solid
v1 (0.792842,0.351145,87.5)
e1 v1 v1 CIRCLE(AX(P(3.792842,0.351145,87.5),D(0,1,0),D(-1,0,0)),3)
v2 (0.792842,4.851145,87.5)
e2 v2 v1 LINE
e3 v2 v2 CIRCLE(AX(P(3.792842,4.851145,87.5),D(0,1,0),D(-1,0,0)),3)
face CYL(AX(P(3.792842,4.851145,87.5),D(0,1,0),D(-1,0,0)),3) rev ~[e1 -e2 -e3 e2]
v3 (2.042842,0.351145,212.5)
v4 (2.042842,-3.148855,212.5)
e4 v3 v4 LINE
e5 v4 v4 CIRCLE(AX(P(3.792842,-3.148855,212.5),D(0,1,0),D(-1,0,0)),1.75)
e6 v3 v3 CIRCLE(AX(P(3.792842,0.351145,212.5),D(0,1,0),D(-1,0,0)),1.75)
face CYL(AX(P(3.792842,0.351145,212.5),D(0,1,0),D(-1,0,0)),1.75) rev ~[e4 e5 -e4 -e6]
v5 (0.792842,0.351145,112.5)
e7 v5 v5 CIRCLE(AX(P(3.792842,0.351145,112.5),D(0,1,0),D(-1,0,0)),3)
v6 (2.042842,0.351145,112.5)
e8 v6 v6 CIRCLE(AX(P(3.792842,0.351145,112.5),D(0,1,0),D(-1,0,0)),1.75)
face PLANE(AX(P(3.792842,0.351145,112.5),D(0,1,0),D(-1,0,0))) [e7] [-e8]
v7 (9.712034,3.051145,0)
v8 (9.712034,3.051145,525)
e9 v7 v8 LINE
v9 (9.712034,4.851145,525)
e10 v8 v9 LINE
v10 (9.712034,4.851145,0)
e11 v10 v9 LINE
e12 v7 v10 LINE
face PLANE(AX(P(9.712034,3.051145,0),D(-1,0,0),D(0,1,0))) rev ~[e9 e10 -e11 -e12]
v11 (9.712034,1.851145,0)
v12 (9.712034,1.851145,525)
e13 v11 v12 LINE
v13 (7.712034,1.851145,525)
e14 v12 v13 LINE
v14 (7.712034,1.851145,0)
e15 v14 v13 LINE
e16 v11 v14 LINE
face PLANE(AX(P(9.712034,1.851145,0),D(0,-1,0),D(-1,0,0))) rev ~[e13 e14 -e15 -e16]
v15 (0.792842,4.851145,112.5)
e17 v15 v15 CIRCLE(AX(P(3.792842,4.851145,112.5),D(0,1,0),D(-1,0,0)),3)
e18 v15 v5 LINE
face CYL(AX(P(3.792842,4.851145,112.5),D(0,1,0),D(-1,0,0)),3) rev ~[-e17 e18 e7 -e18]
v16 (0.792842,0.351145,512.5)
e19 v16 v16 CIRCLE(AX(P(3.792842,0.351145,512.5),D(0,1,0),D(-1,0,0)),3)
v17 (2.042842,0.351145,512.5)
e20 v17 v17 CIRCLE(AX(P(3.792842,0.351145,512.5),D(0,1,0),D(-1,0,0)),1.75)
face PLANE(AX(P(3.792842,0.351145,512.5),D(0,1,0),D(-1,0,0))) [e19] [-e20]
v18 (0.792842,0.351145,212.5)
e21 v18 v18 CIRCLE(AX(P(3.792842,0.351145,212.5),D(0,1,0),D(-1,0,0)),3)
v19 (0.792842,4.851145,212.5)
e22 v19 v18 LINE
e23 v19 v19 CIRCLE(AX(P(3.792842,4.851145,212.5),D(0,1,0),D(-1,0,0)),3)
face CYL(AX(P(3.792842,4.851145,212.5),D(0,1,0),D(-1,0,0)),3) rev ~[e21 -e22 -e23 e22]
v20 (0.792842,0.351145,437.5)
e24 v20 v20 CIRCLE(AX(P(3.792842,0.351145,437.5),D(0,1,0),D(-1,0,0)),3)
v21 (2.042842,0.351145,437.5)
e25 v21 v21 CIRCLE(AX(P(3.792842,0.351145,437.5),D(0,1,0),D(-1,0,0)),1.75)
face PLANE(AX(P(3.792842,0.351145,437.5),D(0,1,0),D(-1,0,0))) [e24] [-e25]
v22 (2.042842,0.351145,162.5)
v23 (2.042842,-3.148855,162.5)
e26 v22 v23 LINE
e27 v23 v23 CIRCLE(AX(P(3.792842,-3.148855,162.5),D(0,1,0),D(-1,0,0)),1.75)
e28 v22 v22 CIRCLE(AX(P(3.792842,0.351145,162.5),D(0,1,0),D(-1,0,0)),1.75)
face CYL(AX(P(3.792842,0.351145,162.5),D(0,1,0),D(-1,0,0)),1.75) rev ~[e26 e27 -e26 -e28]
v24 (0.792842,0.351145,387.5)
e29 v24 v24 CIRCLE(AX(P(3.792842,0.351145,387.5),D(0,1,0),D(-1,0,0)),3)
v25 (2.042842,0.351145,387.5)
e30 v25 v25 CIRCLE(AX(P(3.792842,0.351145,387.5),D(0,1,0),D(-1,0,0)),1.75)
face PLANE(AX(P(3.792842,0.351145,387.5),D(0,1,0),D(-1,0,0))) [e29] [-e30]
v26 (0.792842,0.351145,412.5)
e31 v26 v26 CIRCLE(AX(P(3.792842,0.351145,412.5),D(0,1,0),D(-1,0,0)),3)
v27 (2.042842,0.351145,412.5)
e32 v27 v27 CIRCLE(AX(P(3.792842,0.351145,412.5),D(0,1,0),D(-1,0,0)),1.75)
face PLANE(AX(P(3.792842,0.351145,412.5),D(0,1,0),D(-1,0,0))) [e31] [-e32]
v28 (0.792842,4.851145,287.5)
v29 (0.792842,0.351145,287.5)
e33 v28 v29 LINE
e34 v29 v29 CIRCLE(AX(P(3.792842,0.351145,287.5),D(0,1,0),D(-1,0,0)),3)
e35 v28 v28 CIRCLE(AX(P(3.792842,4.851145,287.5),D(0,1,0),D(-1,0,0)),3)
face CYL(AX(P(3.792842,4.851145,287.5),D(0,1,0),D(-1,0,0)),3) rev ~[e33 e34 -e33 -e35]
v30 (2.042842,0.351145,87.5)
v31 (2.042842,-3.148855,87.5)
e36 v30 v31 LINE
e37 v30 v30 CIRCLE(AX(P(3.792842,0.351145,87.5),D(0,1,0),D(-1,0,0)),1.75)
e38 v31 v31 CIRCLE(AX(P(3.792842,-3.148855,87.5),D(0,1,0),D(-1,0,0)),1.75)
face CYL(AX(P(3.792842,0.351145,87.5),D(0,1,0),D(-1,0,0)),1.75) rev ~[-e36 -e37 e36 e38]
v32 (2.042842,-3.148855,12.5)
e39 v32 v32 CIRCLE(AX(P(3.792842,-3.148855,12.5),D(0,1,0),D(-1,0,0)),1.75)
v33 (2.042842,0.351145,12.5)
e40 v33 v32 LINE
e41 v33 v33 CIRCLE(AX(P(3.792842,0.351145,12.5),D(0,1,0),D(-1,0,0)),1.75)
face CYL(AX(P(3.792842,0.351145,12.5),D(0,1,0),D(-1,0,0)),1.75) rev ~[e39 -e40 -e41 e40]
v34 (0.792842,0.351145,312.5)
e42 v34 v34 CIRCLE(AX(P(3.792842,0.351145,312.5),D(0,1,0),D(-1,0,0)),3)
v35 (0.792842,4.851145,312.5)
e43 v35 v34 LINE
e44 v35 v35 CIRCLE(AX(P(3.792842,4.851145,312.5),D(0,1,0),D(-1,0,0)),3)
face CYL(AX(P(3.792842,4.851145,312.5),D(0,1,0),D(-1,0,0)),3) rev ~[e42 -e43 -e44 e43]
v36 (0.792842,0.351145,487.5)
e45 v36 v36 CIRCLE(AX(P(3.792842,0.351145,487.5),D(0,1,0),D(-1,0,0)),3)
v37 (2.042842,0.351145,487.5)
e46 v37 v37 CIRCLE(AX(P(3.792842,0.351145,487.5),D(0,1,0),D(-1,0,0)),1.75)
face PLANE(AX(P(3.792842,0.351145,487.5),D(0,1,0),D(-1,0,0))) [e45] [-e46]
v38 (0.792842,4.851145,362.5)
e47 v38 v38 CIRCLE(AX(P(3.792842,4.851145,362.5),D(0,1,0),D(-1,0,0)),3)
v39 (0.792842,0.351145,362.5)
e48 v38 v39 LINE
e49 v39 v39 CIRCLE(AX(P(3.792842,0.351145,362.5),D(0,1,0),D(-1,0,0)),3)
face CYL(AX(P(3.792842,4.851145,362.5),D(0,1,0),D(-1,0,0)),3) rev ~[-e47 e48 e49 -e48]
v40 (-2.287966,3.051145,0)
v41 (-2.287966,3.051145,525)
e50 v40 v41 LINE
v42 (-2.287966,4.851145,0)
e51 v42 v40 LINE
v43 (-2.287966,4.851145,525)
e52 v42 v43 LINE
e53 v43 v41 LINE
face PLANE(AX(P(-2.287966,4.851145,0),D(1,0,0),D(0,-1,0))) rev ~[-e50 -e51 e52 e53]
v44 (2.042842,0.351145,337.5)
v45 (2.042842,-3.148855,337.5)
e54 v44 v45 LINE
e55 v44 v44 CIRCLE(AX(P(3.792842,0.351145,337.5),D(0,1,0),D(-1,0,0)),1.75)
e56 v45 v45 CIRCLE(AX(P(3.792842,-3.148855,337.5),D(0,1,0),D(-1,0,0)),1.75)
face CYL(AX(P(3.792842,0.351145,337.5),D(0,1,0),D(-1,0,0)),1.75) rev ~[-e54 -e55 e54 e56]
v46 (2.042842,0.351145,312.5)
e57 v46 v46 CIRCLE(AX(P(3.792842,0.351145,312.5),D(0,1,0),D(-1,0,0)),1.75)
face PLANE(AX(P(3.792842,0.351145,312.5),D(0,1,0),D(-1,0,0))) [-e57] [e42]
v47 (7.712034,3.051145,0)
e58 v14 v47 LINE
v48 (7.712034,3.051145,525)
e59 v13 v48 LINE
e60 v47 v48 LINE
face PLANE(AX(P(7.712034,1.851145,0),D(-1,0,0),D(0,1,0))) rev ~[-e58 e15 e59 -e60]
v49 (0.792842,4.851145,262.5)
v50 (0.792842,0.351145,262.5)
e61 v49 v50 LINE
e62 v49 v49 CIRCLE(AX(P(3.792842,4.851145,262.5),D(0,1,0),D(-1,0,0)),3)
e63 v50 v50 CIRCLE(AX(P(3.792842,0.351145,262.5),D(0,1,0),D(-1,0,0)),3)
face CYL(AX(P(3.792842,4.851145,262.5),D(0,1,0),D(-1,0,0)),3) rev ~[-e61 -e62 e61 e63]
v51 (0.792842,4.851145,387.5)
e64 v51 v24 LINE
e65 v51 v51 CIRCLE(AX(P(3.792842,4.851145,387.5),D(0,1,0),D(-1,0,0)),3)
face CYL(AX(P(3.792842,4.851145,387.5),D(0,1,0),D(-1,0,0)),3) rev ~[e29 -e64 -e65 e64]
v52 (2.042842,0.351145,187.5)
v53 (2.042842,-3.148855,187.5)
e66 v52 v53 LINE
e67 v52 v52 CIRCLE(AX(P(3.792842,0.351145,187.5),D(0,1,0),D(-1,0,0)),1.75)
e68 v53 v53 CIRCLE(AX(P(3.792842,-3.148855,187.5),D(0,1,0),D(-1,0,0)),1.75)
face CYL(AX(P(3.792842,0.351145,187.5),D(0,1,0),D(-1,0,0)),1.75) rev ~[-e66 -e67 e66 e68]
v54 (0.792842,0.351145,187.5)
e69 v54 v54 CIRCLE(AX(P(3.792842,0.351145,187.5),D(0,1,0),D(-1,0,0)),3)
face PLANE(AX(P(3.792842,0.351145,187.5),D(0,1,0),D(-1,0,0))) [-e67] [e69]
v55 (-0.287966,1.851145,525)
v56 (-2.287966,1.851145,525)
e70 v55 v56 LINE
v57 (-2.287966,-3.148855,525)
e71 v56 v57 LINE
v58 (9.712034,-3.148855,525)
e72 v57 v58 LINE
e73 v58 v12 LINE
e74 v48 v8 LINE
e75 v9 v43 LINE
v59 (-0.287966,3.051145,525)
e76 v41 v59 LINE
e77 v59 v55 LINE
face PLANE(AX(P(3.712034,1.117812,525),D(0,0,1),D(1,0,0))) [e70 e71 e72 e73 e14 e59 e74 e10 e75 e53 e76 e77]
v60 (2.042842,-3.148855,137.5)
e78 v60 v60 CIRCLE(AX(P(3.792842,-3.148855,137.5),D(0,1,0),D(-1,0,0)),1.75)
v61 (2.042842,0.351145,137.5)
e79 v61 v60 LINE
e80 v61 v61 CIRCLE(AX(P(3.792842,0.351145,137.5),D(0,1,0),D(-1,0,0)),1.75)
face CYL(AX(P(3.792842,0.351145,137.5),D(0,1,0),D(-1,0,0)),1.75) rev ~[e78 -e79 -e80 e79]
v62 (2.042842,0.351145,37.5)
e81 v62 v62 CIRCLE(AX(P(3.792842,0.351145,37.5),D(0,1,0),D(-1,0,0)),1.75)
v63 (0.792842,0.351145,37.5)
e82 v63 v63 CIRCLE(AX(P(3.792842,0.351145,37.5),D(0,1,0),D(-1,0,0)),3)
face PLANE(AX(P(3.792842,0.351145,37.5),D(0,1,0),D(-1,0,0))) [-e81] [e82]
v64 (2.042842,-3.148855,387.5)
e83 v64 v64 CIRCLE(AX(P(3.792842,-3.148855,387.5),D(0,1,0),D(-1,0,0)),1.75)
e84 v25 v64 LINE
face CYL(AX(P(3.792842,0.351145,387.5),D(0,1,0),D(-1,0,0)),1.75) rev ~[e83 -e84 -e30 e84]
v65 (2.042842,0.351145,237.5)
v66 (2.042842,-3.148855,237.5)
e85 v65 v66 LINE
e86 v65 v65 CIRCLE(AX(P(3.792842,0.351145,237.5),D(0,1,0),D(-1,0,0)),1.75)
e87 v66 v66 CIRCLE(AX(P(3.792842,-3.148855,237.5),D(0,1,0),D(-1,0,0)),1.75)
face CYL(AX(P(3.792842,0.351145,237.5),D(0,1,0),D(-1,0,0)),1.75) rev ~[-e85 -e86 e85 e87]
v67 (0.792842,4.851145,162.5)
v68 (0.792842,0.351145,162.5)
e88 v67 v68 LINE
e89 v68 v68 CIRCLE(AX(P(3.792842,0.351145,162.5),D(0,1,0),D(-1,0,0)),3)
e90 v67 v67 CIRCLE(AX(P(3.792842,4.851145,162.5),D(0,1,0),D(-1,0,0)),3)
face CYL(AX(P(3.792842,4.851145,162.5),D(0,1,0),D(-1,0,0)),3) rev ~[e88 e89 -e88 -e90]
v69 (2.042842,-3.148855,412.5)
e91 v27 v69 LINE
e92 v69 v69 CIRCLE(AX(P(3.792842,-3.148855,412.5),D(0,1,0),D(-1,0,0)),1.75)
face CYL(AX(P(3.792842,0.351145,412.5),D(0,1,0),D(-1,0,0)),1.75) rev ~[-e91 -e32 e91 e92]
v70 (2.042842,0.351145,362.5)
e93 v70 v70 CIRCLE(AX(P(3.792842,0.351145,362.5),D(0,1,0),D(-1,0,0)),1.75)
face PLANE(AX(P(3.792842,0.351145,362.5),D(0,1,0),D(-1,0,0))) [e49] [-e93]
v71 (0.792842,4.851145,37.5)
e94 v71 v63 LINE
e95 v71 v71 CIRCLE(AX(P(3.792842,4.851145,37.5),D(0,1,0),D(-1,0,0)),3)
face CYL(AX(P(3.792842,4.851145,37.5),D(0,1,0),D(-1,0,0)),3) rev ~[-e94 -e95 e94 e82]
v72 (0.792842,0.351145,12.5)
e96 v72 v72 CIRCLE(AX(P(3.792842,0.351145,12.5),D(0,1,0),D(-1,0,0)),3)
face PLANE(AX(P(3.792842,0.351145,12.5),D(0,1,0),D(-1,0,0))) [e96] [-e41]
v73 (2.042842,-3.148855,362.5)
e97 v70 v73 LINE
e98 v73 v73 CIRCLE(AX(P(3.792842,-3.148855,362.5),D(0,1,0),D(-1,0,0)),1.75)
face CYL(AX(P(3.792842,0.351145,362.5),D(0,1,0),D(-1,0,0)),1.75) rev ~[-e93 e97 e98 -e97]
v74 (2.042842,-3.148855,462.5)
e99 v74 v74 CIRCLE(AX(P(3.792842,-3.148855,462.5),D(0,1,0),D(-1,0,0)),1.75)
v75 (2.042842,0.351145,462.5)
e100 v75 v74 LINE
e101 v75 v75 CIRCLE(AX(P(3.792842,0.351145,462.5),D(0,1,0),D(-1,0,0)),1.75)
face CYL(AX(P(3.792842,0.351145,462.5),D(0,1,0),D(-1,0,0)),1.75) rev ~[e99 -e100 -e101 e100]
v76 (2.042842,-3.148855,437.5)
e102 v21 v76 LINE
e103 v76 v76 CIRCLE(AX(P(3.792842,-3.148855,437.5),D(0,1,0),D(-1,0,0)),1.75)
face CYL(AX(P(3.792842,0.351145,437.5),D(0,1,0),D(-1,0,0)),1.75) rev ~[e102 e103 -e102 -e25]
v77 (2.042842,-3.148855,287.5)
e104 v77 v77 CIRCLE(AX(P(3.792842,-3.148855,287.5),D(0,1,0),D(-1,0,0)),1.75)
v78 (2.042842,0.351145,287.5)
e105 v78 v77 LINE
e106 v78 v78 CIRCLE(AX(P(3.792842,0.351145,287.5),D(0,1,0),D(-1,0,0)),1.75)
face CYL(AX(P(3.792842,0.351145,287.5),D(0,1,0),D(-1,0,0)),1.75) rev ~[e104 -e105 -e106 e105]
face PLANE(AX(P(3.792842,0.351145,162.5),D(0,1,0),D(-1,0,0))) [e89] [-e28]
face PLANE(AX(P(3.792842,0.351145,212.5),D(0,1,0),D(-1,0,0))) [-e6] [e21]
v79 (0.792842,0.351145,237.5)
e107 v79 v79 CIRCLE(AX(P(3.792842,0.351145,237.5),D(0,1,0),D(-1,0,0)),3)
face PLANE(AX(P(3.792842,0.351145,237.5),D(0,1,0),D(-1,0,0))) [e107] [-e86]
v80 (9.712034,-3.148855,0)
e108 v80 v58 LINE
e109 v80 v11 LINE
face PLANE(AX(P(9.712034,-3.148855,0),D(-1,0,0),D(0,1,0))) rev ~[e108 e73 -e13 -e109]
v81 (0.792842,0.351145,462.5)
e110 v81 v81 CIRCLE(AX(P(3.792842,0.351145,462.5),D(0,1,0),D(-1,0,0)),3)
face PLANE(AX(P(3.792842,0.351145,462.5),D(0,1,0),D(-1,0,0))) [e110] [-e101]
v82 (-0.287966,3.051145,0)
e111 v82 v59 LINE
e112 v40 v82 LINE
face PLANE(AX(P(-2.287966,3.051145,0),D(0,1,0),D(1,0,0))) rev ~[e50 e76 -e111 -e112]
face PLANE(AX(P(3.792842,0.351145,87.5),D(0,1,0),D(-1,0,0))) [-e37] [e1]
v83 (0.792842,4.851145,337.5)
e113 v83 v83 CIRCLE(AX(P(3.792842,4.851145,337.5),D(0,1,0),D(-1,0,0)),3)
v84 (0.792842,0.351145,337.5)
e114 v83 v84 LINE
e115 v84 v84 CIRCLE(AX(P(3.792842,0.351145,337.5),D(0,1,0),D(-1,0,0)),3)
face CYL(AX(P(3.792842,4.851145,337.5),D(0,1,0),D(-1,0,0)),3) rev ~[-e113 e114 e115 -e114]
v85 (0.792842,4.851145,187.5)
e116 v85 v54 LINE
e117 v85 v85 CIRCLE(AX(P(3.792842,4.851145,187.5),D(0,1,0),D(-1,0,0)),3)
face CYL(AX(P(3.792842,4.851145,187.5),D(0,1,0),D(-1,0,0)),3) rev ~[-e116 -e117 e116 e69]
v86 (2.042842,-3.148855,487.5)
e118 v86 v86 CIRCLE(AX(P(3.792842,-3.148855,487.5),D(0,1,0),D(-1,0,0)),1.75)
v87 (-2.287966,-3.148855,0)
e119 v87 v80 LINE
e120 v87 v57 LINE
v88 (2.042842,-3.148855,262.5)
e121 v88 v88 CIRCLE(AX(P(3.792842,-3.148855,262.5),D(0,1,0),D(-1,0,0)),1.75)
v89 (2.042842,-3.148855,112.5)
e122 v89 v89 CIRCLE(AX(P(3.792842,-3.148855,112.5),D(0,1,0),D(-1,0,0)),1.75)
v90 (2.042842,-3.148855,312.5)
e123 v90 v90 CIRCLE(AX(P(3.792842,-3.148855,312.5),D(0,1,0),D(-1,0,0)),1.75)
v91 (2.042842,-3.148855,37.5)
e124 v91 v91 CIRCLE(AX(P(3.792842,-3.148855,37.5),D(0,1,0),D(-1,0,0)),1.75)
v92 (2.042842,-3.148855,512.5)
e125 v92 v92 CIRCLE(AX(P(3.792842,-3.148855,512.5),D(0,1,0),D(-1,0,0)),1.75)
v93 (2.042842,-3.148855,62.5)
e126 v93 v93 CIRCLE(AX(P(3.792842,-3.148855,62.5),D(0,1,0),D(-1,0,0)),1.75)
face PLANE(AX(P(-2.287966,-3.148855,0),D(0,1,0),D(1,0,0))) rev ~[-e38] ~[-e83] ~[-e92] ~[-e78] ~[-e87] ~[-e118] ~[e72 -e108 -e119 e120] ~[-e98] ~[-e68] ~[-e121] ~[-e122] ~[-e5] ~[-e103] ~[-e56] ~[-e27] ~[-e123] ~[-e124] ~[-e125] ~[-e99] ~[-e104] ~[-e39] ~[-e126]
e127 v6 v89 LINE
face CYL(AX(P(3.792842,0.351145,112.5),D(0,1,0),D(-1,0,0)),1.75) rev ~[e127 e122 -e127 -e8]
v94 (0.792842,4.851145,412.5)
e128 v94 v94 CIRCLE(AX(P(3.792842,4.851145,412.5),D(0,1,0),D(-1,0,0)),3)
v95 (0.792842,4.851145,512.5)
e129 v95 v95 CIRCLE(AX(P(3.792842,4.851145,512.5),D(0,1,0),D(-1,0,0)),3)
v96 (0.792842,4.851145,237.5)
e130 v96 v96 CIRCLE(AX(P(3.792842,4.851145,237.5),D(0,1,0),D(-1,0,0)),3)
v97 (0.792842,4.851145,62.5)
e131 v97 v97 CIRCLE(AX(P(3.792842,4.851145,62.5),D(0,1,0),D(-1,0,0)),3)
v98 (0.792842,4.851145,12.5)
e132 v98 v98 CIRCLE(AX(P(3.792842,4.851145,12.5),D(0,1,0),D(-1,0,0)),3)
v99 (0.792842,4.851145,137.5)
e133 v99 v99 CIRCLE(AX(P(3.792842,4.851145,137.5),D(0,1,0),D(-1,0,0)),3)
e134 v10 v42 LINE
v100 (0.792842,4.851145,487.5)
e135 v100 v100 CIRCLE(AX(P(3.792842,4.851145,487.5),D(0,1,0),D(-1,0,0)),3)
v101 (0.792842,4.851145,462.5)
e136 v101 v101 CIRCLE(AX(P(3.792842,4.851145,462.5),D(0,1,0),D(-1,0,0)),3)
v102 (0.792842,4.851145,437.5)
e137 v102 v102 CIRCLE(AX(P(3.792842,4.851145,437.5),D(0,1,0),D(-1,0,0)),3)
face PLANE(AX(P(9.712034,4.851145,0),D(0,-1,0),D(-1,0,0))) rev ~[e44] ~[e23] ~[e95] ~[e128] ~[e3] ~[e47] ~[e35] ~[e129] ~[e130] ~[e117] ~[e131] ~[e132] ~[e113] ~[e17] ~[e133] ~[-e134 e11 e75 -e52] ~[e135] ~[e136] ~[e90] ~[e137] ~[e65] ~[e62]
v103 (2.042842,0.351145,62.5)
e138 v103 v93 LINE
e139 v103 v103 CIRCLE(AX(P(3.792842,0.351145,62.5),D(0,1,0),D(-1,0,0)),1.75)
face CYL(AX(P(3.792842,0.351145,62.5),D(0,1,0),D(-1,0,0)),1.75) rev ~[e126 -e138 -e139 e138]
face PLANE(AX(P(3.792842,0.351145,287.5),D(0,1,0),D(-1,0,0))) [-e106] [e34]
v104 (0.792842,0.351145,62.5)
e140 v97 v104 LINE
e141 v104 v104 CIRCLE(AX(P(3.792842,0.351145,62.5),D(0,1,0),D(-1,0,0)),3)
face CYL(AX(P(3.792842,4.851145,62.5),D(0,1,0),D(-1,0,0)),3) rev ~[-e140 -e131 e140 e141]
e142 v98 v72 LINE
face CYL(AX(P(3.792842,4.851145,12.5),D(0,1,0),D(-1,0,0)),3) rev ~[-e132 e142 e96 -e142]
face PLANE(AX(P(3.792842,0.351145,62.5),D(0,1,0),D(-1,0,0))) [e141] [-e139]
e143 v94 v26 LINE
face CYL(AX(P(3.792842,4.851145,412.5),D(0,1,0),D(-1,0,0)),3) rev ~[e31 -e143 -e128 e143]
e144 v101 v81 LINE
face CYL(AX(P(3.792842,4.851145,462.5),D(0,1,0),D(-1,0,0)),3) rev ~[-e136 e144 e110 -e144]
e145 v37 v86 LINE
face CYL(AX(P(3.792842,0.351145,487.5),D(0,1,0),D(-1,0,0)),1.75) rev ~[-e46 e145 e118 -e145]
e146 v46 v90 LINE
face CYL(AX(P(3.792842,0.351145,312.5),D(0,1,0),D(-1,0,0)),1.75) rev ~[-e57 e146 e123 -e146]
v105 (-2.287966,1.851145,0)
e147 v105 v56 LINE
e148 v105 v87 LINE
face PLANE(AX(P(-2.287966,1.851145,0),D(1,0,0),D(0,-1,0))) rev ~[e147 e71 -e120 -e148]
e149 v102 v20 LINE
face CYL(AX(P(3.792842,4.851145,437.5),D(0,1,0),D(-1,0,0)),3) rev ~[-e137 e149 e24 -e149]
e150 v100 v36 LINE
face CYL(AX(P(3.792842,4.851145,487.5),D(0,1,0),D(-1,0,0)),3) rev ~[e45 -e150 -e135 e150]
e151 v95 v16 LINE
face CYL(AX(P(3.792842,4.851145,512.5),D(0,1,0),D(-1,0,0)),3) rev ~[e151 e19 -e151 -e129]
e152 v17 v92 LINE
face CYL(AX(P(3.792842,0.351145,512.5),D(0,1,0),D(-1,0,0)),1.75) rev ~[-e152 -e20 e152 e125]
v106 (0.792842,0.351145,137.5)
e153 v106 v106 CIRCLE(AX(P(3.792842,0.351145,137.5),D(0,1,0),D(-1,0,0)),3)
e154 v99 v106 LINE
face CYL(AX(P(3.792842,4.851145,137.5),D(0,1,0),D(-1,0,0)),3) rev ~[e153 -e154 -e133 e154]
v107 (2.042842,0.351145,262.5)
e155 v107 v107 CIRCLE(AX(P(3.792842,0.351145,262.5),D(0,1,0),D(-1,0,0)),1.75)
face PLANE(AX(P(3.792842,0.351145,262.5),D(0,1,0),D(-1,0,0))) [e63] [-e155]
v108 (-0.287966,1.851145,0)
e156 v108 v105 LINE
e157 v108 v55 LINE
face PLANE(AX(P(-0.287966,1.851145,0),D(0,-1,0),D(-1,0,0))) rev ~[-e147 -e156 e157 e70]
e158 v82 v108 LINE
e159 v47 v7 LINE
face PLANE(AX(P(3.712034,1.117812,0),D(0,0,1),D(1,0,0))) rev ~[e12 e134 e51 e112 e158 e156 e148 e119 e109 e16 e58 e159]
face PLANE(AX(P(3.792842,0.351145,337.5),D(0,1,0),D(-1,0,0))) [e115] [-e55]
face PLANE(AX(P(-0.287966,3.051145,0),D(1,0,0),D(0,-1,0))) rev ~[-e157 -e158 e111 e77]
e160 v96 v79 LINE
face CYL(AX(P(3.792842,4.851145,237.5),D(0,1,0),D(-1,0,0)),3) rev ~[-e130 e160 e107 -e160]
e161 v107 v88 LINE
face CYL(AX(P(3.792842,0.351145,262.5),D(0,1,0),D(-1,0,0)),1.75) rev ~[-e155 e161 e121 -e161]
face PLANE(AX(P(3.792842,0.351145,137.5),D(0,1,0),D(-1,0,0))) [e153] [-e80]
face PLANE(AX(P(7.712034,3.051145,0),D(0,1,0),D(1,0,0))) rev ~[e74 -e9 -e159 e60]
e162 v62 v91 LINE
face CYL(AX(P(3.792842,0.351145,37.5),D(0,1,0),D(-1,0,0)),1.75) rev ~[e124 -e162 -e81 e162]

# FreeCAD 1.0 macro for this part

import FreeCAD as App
import Part
import Sketcher

V = App.Vector
Q = App.Units.Quantity

doc = App.newDocument("Part")
body = doc.addObject("PartDesign::Body", "Body")

# Sketch on XY plane
sketch1 = body.newObject("Sketcher::SketchObject", "Sketch")
sketch1.AttachmentSupport = (doc.getObject("XY_Plane"), [""])
sketch1.MapMode = "FlatFace"
sketch1.addGeometry([
    Part.LineSegment(V(-2.3, -3.1, 0), V(9.7, -3.1, 0)),  # 0
    Part.LineSegment(V(9.7, -3.1, 0), V(9.7, 1.9, 0)),  # 1
    Part.LineSegment(V(9.7, 1.9, 0), V(7.7, 1.9, 0)),  # 2
    Part.LineSegment(V(7.7, 1.9, 0), V(7.7, 3.1, 0)),  # 3
    Part.LineSegment(V(7.7, 3.1, 0), V(9.7, 3.1, 0)),  # 4
    Part.LineSegment(V(9.7, 3.1, 0), V(9.7, 4.9, 0)),  # 5
    Part.LineSegment(V(9.7, 4.9, 0), V(-2.3, 4.9, 0)),  # 6
    Part.LineSegment(V(-2.3, 4.9, 0), V(-2.3, 3.1, 0)),  # 7
    Part.LineSegment(V(-2.3, 3.1, 0), V(-0.3, 3.1, 0)),  # 8
    Part.LineSegment(V(-0.3, 3.1, 0), V(-0.3, 1.9, 0)),  # 9
    Part.LineSegment(V(-0.3, 1.9, 0), V(-2.3, 1.9, 0)),  # 10
    Part.LineSegment(V(-2.3, 1.9, 0), V(-2.3, -3.1, 0)),  # 11
], False)
sketch1.addConstraint([
    Sketcher.Constraint("Coincident", 0, 2, 1, 1),
    Sketcher.Constraint("Coincident", 1, 2, 2, 1),
    Sketcher.Constraint("Coincident", 2, 2, 3, 1),
    Sketcher.Constraint("Coincident", 3, 2, 4, 1),
    Sketcher.Constraint("Coincident", 4, 2, 5, 1),
    Sketcher.Constraint("Coincident", 5, 2, 6, 1),
    Sketcher.Constraint("Coincident", 6, 2, 7, 1),
    Sketcher.Constraint("Coincident", 7, 2, 8, 1),
    Sketcher.Constraint("Coincident", 8, 2, 9, 1),
    Sketcher.Constraint("Coincident", 9, 2, 10, 1),
    Sketcher.Constraint("Coincident", 10, 2, 11, 1),
    Sketcher.Constraint("Coincident", 11, 2, 0, 1),
    Sketcher.Constraint("Horizontal", 0),
    Sketcher.Constraint("Vertical", 1),
    Sketcher.Constraint("Horizontal", 2),
    Sketcher.Constraint("Vertical", 3),
    Sketcher.Constraint("Horizontal", 4),
    Sketcher.Constraint("Vertical", 5),
    Sketcher.Constraint("Horizontal", 6),
    Sketcher.Constraint("Vertical", 7),
    Sketcher.Constraint("Horizontal", 8),
    Sketcher.Constraint("Vertical", 9),
    Sketcher.Constraint("Horizontal", 10),
    Sketcher.Constraint("Vertical", 11),
    Sketcher.Constraint("Horizontal", 4, 2, 7, 2),
    Sketcher.Constraint("Horizontal", 2, 2, 9, 2),
    Sketcher.Constraint("Vertical", 1, 2, 4, 2),
    Sketcher.Constraint("Vertical", 7, 2, 10, 2),
    Sketcher.Constraint("Equal", 4, 8),
    Sketcher.Constraint("DistanceX", 0, 1, 0, 2, Q("12 mm")),
    Sketcher.Constraint("DistanceX", 2, 2, 2, 1, Q("2 mm")),
    Sketcher.Constraint("DistanceY", 1, 1, 1, 2, Q("5 mm")),
    Sketcher.Constraint("DistanceY", 3, 1, 3, 2, Q("1.2 mm")),
    Sketcher.Constraint("DistanceY", 5, 1, 5, 2, Q("1.8 mm")),
    Sketcher.Constraint("DistanceX", -1, 1, 0, 2, Q("9.712034 mm")),
    Sketcher.Constraint("DistanceY", 0, 2, -1, 1, Q("3.148855 mm")),
])
pad1 = body.newObject("PartDesign::Pad", "Pad")
pad1.Profile = sketch1
pad1.Length = 525

# Sketch on XZ plane
sketch2 = body.newObject("Sketcher::SketchObject", "Sketch001")
sketch2.AttachmentSupport = (doc.getObject("XZ_Plane"), [""])
sketch2.MapMode = "FlatFace"
sketch2.AttachmentOffset = App.Placement(V(0, 0, -4.851145), App.Rotation())
sketch2.addGeometry([
    Part.Circle(V(3.8, 512.5, 0), V(0, 0, 1), 3),  # 0
    Part.Circle(V(3.8, 487.5, 0), V(0, 0, 1), 3),  # 1
    Part.Circle(V(3.8, 462.5, 0), V(0, 0, 1), 3),  # 2
    Part.Circle(V(3.8, 437.5, 0), V(0, 0, 1), 3),  # 3
    Part.Circle(V(3.8, 412.5, 0), V(0, 0, 1), 3),  # 4
    Part.Circle(V(3.8, 387.5, 0), V(0, 0, 1), 3),  # 5
    Part.Circle(V(3.8, 362.5, 0), V(0, 0, 1), 3),  # 6
    Part.Circle(V(3.8, 337.5, 0), V(0, 0, 1), 3),  # 7
    Part.Circle(V(3.8, 312.5, 0), V(0, 0, 1), 3),  # 8
    Part.Circle(V(3.8, 287.5, 0), V(0, 0, 1), 3),  # 9
    Part.Circle(V(3.8, 262.5, 0), V(0, 0, 1), 3),  # 10
    Part.Circle(V(3.8, 237.5, 0), V(0, 0, 1), 3),  # 11
    Part.Circle(V(3.8, 212.5, 0), V(0, 0, 1), 3),  # 12
    Part.Circle(V(3.8, 187.5, 0), V(0, 0, 1), 3),  # 13
    Part.Circle(V(3.8, 162.5, 0), V(0, 0, 1), 3),  # 14
    Part.Circle(V(3.8, 137.5, 0), V(0, 0, 1), 3),  # 15
    Part.Circle(V(3.8, 112.5, 0), V(0, 0, 1), 3),  # 16
    Part.Circle(V(3.8, 87.5, 0), V(0, 0, 1), 3),  # 17
    Part.Circle(V(3.8, 62.5, 0), V(0, 0, 1), 3),  # 18
    Part.Circle(V(3.8, 37.5, 0), V(0, 0, 1), 3),  # 19
    Part.Circle(V(3.8, 12.5, 0), V(0, 0, 1), 3),  # 20
], False)
sketch2.addConstraint([
    Sketcher.Constraint("Equal", 0, 1),
    Sketcher.Constraint("Equal", 1, 2),
    Sketcher.Constraint("Equal", 2, 3),
    Sketcher.Constraint("Equal", 3, 4),
    Sketcher.Constraint("Equal", 4, 5),
    Sketcher.Constraint("Equal", 5, 6),
    Sketcher.Constraint("Equal", 6, 7),
    Sketcher.Constraint("Equal", 7, 8),
    Sketcher.Constraint("Equal", 8, 9),
    Sketcher.Constraint("Equal", 9, 10),
    Sketcher.Constraint("Equal", 10, 11),
    Sketcher.Constraint("Equal", 11, 12),
    Sketcher.Constraint("Equal", 12, 13),
    Sketcher.Constraint("Equal", 13, 14),
    Sketcher.Constraint("Equal", 14, 15),
    Sketcher.Constraint("Equal", 15, 16),
    Sketcher.Constraint("Equal", 16, 17),
    Sketcher.Constraint("Equal", 17, 18),
    Sketcher.Constraint("Equal", 18, 19),
    Sketcher.Constraint("Equal", 19, 20),
    Sketcher.Constraint("Vertical", 0, 3, 1, 3),
    Sketcher.Constraint("Vertical", 1, 3, 2, 3),
    Sketcher.Constraint("Vertical", 2, 3, 3, 3),
    Sketcher.Constraint("Vertical", 3, 3, 4, 3),
    Sketcher.Constraint("Vertical", 4, 3, 5, 3),
    Sketcher.Constraint("Vertical", 5, 3, 6, 3),
    Sketcher.Constraint("Vertical", 6, 3, 7, 3),
    Sketcher.Constraint("Vertical", 7, 3, 8, 3),
    Sketcher.Constraint("Vertical", 8, 3, 9, 3),
    Sketcher.Constraint("Vertical", 9, 3, 10, 3),
    Sketcher.Constraint("Vertical", 10, 3, 11, 3),
    Sketcher.Constraint("Vertical", 11, 3, 12, 3),
    Sketcher.Constraint("Vertical", 12, 3, 13, 3),
    Sketcher.Constraint("Vertical", 13, 3, 14, 3),
    Sketcher.Constraint("Vertical", 14, 3, 15, 3),
    Sketcher.Constraint("Vertical", 15, 3, 16, 3),
    Sketcher.Constraint("Vertical", 16, 3, 17, 3),
    Sketcher.Constraint("Vertical", 17, 3, 18, 3),
    Sketcher.Constraint("Vertical", 18, 3, 19, 3),
    Sketcher.Constraint("Vertical", 19, 3, 20, 3),
    Sketcher.Constraint("Diameter", 0, Q("6 mm")),
    Sketcher.Constraint("DistanceY", 1, 3, 0, 3, Q("25 mm")),
    Sketcher.Constraint("DistanceY", 2, 3, 1, 3, Q("25 mm")),
    Sketcher.Constraint("DistanceY", 3, 3, 2, 3, Q("25 mm")),
    Sketcher.Constraint("DistanceY", 4, 3, 3, 3, Q("25 mm")),
    Sketcher.Constraint("DistanceY", 5, 3, 4, 3, Q("25 mm")),
    Sketcher.Constraint("DistanceY", 6, 3, 5, 3, Q("25 mm")),
    Sketcher.Constraint("DistanceY", 7, 3, 6, 3, Q("25 mm")),
    Sketcher.Constraint("DistanceY", 8, 3, 7, 3, Q("25 mm")),
    Sketcher.Constraint("DistanceY", 9, 3, 8, 3, Q("25 mm")),
    Sketcher.Constraint("DistanceY", 10, 3, 9, 3, Q("25 mm")),
    Sketcher.Constraint("DistanceY", 11, 3, 10, 3, Q("25 mm")),
    Sketcher.Constraint("DistanceY", 12, 3, 11, 3, Q("25 mm")),
    Sketcher.Constraint("DistanceY", 13, 3, 12, 3, Q("25 mm")),
    Sketcher.Constraint("DistanceY", 14, 3, 13, 3, Q("25 mm")),
    Sketcher.Constraint("DistanceY", 15, 3, 14, 3, Q("25 mm")),
    Sketcher.Constraint("DistanceY", 16, 3, 15, 3, Q("25 mm")),
    Sketcher.Constraint("DistanceY", 17, 3, 16, 3, Q("25 mm")),
    Sketcher.Constraint("DistanceY", 18, 3, 17, 3, Q("25 mm")),
    Sketcher.Constraint("DistanceY", 19, 3, 18, 3, Q("25 mm")),
    Sketcher.Constraint("DistanceY", 20, 3, 19, 3, Q("25 mm")),
    Sketcher.Constraint("DistanceY", -1, 1, 0, 3, Q("512.5 mm")),
    Sketcher.Constraint("DistanceX", -1, 1, 0, 3, Q("3.792842 mm")),
])
pocket1 = body.newObject("PartDesign::Pocket", "Pocket")
pocket1.Profile = sketch2
pocket1.Length = 4.5
pocket1.Reversed = True

# Sketch on XZ plane
sketch3 = body.newObject("Sketcher::SketchObject", "Sketch002")
sketch3.AttachmentSupport = (doc.getObject("XZ_Plane"), [""])
sketch3.MapMode = "FlatFace"
sketch3.AttachmentOffset = App.Placement(V(0, 0, -0.351145), App.Rotation())
sketch3.addGeometry(Part.Circle(V(3.8, 512.5, 0), V(0, 0, 1), 1.8), False)
sketch3.addConstraint([
    Sketcher.Constraint("Diameter", 0, Q("3.5 mm")),
    Sketcher.Constraint("DistanceY", -1, 1, 0, 3, Q("512.5 mm")),
    Sketcher.Constraint("DistanceX", -1, 1, 0, 3, Q("3.792842 mm")),
])
pocket2 = body.newObject("PartDesign::Pocket", "Pocket001")
pocket2.Profile = sketch3
pocket2.Type = "UpToFirst"
pocket2.Reversed = True

# Sketch on XZ plane
sketch4 = body.newObject("Sketcher::SketchObject", "Sketch003")
sketch4.AttachmentSupport = (doc.getObject("XZ_Plane"), [""])
sketch4.MapMode = "FlatFace"
sketch4.AttachmentOffset = App.Placement(V(0, 0, -0.351145), App.Rotation())
sketch4.addGeometry(Part.Circle(V(3.8, 487.5, 0), V(0, 0, 1), 1.8), False)
sketch4.addConstraint([
    Sketcher.Constraint("Diameter", 0, Q("3.5 mm")),
    Sketcher.Constraint("DistanceY", -1, 1, 0, 3, Q("487.5 mm")),
    Sketcher.Constraint("DistanceX", -1, 1, 0, 3, Q("3.792842 mm")),
])
pocket3 = body.newObject("PartDesign::Pocket", "Pocket002")
pocket3.Profile = sketch4
pocket3.Type = "UpToFirst"
pocket3.Reversed = True

# Sketch on XZ plane
sketch5 = body.newObject("Sketcher::SketchObject", "Sketch004")
sketch5.AttachmentSupport = (doc.getObject("XZ_Plane"), [""])
sketch5.MapMode = "FlatFace"
sketch5.AttachmentOffset = App.Placement(V(0, 0, -0.351145), App.Rotation())
sketch5.addGeometry(Part.Circle(V(3.8, 462.5, 0), V(0, 0, 1), 1.8), False)
sketch5.addConstraint([
    Sketcher.Constraint("Diameter", 0, Q("3.5 mm")),
    Sketcher.Constraint("DistanceY", -1, 1, 0, 3, Q("462.5 mm")),
    Sketcher.Constraint("DistanceX", -1, 1, 0, 3, Q("3.792842 mm")),
])
pocket4 = body.newObject("PartDesign::Pocket", "Pocket003")
pocket4.Profile = sketch5
pocket4.Type = "UpToFirst"
pocket4.Reversed = True

# Sketch on XZ plane
sketch6 = body.newObject("Sketcher::SketchObject", "Sketch005")
sketch6.AttachmentSupport = (doc.getObject("XZ_Plane"), [""])
sketch6.MapMode = "FlatFace"
sketch6.AttachmentOffset = App.Placement(V(0, 0, -0.351145), App.Rotation())
sketch6.addGeometry(Part.Circle(V(3.8, 437.5, 0), V(0, 0, 1), 1.8), False)
sketch6.addConstraint([
    Sketcher.Constraint("Diameter", 0, Q("3.5 mm")),
    Sketcher.Constraint("DistanceY", -1, 1, 0, 3, Q("437.5 mm")),
    Sketcher.Constraint("DistanceX", -1, 1, 0, 3, Q("3.792842 mm")),
])
pocket5 = body.newObject("PartDesign::Pocket", "Pocket004")
pocket5.Profile = sketch6
pocket5.Type = "UpToFirst"
pocket5.Reversed = True

# Sketch on XZ plane
sketch7 = body.newObject("Sketcher::SketchObject", "Sketch006")
sketch7.AttachmentSupport = (doc.getObject("XZ_Plane"), [""])
sketch7.MapMode = "FlatFace"
sketch7.AttachmentOffset = App.Placement(V(0, 0, -0.351145), App.Rotation())
sketch7.addGeometry(Part.Circle(V(3.8, 412.5, 0), V(0, 0, 1), 1.8), False)
sketch7.addConstraint([
    Sketcher.Constraint("Diameter", 0, Q("3.5 mm")),
    Sketcher.Constraint("DistanceY", -1, 1, 0, 3, Q("412.5 mm")),
    Sketcher.Constraint("DistanceX", -1, 1, 0, 3, Q("3.792842 mm")),
])
pocket6 = body.newObject("PartDesign::Pocket", "Pocket005")
pocket6.Profile = sketch7
pocket6.Type = "UpToFirst"
pocket6.Reversed = True

# Sketch on XZ plane
sketch8 = body.newObject("Sketcher::SketchObject", "Sketch007")
sketch8.AttachmentSupport = (doc.getObject("XZ_Plane"), [""])
sketch8.MapMode = "FlatFace"
sketch8.AttachmentOffset = App.Placement(V(0, 0, -0.351145), App.Rotation())
sketch8.addGeometry(Part.Circle(V(3.8, 387.5, 0), V(0, 0, 1), 1.8), False)
sketch8.addConstraint([
    Sketcher.Constraint("Diameter", 0, Q("3.5 mm")),
    Sketcher.Constraint("DistanceY", -1, 1, 0, 3, Q("387.5 mm")),
    Sketcher.Constraint("DistanceX", -1, 1, 0, 3, Q("3.792842 mm")),
])
pocket7 = body.newObject("PartDesign::Pocket", "Pocket006")
pocket7.Profile = sketch8
pocket7.Type = "UpToFirst"
pocket7.Reversed = True

# Sketch on XZ plane
sketch9 = body.newObject("Sketcher::SketchObject", "Sketch008")
sketch9.AttachmentSupport = (doc.getObject("XZ_Plane"), [""])
sketch9.MapMode = "FlatFace"
sketch9.AttachmentOffset = App.Placement(V(0, 0, -0.351145), App.Rotation())
sketch9.addGeometry(Part.Circle(V(3.8, 362.5, 0), V(0, 0, 1), 1.8), False)
sketch9.addConstraint([
    Sketcher.Constraint("Diameter", 0, Q("3.5 mm")),
    Sketcher.Constraint("DistanceY", -1, 1, 0, 3, Q("362.5 mm")),
    Sketcher.Constraint("DistanceX", -1, 1, 0, 3, Q("3.792842 mm")),
])
pocket8 = body.newObject("PartDesign::Pocket", "Pocket007")
pocket8.Profile = sketch9
pocket8.Type = "UpToFirst"
pocket8.Reversed = True

# Sketch on XZ plane
sketch10 = body.newObject("Sketcher::SketchObject", "Sketch009")
sketch10.AttachmentSupport = (doc.getObject("XZ_Plane"), [""])
sketch10.MapMode = "FlatFace"
sketch10.AttachmentOffset = App.Placement(V(0, 0, -0.351145), App.Rotation())
sketch10.addGeometry(Part.Circle(V(3.8, 337.5, 0), V(0, 0, 1), 1.8), False)
sketch10.addConstraint([
    Sketcher.Constraint("Diameter", 0, Q("3.5 mm")),
    Sketcher.Constraint("DistanceY", -1, 1, 0, 3, Q("337.5 mm")),
    Sketcher.Constraint("DistanceX", -1, 1, 0, 3, Q("3.792842 mm")),
])
pocket9 = body.newObject("PartDesign::Pocket", "Pocket008")
pocket9.Profile = sketch10
pocket9.Type = "UpToFirst"
pocket9.Reversed = True

# Sketch on XZ plane
sketch11 = body.newObject("Sketcher::SketchObject", "Sketch010")
sketch11.AttachmentSupport = (doc.getObject("XZ_Plane"), [""])
sketch11.MapMode = "FlatFace"
sketch11.AttachmentOffset = App.Placement(V(0, 0, -0.351145), App.Rotation())
sketch11.addGeometry(Part.Circle(V(3.8, 312.5, 0), V(0, 0, 1), 1.8), False)
sketch11.addConstraint([
    Sketcher.Constraint("Diameter", 0, Q("3.5 mm")),
    Sketcher.Constraint("DistanceY", -1, 1, 0, 3, Q("312.5 mm")),
    Sketcher.Constraint("DistanceX", -1, 1, 0, 3, Q("3.792842 mm")),
])
pocket10 = body.newObject("PartDesign::Pocket", "Pocket009")
pocket10.Profile = sketch11
pocket10.Type = "UpToFirst"
pocket10.Reversed = True

# Sketch on XZ plane
sketch12 = body.newObject("Sketcher::SketchObject", "Sketch011")
sketch12.AttachmentSupport = (doc.getObject("XZ_Plane"), [""])
sketch12.MapMode = "FlatFace"
sketch12.AttachmentOffset = App.Placement(V(0, 0, -0.351145), App.Rotation())
sketch12.addGeometry(Part.Circle(V(3.8, 287.5, 0), V(0, 0, 1), 1.8), False)
sketch12.addConstraint([
    Sketcher.Constraint("Diameter", 0, Q("3.5 mm")),
    Sketcher.Constraint("DistanceY", -1, 1, 0, 3, Q("287.5 mm")),
    Sketcher.Constraint("DistanceX", -1, 1, 0, 3, Q("3.792842 mm")),
])
pocket11 = body.newObject("PartDesign::Pocket", "Pocket010")
pocket11.Profile = sketch12
pocket11.Type = "UpToFirst"
pocket11.Reversed = True

# Sketch on XZ plane
sketch13 = body.newObject("Sketcher::SketchObject", "Sketch012")
sketch13.AttachmentSupport = (doc.getObject("XZ_Plane"), [""])
sketch13.MapMode = "FlatFace"
sketch13.AttachmentOffset = App.Placement(V(0, 0, -0.351145), App.Rotation())
sketch13.addGeometry(Part.Circle(V(3.8, 262.5, 0), V(0, 0, 1), 1.8), False)
sketch13.addConstraint([
    Sketcher.Constraint("Diameter", 0, Q("3.5 mm")),
    Sketcher.Constraint("DistanceY", -1, 1, 0, 3, Q("262.5 mm")),
    Sketcher.Constraint("DistanceX", -1, 1, 0, 3, Q("3.792842 mm")),
])
pocket12 = body.newObject("PartDesign::Pocket", "Pocket011")
pocket12.Profile = sketch13
pocket12.Type = "UpToFirst"
pocket12.Reversed = True

# Sketch on XZ plane
sketch14 = body.newObject("Sketcher::SketchObject", "Sketch013")
sketch14.AttachmentSupport = (doc.getObject("XZ_Plane"), [""])
sketch14.MapMode = "FlatFace"
sketch14.AttachmentOffset = App.Placement(V(0, 0, -0.351145), App.Rotation())
sketch14.addGeometry(Part.Circle(V(3.8, 237.5, 0), V(0, 0, 1), 1.8), False)
sketch14.addConstraint([
    Sketcher.Constraint("Diameter", 0, Q("3.5 mm")),
    Sketcher.Constraint("DistanceY", -1, 1, 0, 3, Q("237.5 mm")),
    Sketcher.Constraint("DistanceX", -1, 1, 0, 3, Q("3.792842 mm")),
])
pocket13 = body.newObject("PartDesign::Pocket", "Pocket012")
pocket13.Profile = sketch14
pocket13.Type = "UpToFirst"
pocket13.Reversed = True

# Sketch on XZ plane
sketch15 = body.newObject("Sketcher::SketchObject", "Sketch014")
sketch15.AttachmentSupport = (doc.getObject("XZ_Plane"), [""])
sketch15.MapMode = "FlatFace"
sketch15.AttachmentOffset = App.Placement(V(0, 0, -0.351145), App.Rotation())
sketch15.addGeometry(Part.Circle(V(3.8, 212.5, 0), V(0, 0, 1), 1.8), False)
sketch15.addConstraint([
    Sketcher.Constraint("Diameter", 0, Q("3.5 mm")),
    Sketcher.Constraint("DistanceY", -1, 1, 0, 3, Q("212.5 mm")),
    Sketcher.Constraint("DistanceX", -1, 1, 0, 3, Q("3.792842 mm")),
])
pocket14 = body.newObject("PartDesign::Pocket", "Pocket013")
pocket14.Profile = sketch15
pocket14.Type = "UpToFirst"
pocket14.Reversed = True

# Sketch on XZ plane
sketch16 = body.newObject("Sketcher::SketchObject", "Sketch015")
sketch16.AttachmentSupport = (doc.getObject("XZ_Plane"), [""])
sketch16.MapMode = "FlatFace"
sketch16.AttachmentOffset = App.Placement(V(0, 0, -0.351145), App.Rotation())
sketch16.addGeometry(Part.Circle(V(3.8, 187.5, 0), V(0, 0, 1), 1.8), False)
sketch16.addConstraint([
    Sketcher.Constraint("Diameter", 0, Q("3.5 mm")),
    Sketcher.Constraint("DistanceY", -1, 1, 0, 3, Q("187.5 mm")),
    Sketcher.Constraint("DistanceX", -1, 1, 0, 3, Q("3.792842 mm")),
])
pocket15 = body.newObject("PartDesign::Pocket", "Pocket014")
pocket15.Profile = sketch16
pocket15.Type = "UpToFirst"
pocket15.Reversed = True

# Sketch on XZ plane
sketch17 = body.newObject("Sketcher::SketchObject", "Sketch016")
sketch17.AttachmentSupport = (doc.getObject("XZ_Plane"), [""])
sketch17.MapMode = "FlatFace"
sketch17.AttachmentOffset = App.Placement(V(0, 0, -0.351145), App.Rotation())
sketch17.addGeometry(Part.Circle(V(3.8, 162.5, 0), V(0, 0, 1), 1.8), False)
sketch17.addConstraint([
    Sketcher.Constraint("Diameter", 0, Q("3.5 mm")),
    Sketcher.Constraint("DistanceY", -1, 1, 0, 3, Q("162.5 mm")),
    Sketcher.Constraint("DistanceX", -1, 1, 0, 3, Q("3.792842 mm")),
])
pocket16 = body.newObject("PartDesign::Pocket", "Pocket015")
pocket16.Profile = sketch17
pocket16.Type = "UpToFirst"
pocket16.Reversed = True

# Sketch on XZ plane
sketch18 = body.newObject("Sketcher::SketchObject", "Sketch017")
sketch18.AttachmentSupport = (doc.getObject("XZ_Plane"), [""])
sketch18.MapMode = "FlatFace"
sketch18.AttachmentOffset = App.Placement(V(0, 0, -0.351145), App.Rotation())
sketch18.addGeometry(Part.Circle(V(3.8, 137.5, 0), V(0, 0, 1), 1.8), False)
sketch18.addConstraint([
    Sketcher.Constraint("Diameter", 0, Q("3.5 mm")),
    Sketcher.Constraint("DistanceY", -1, 1, 0, 3, Q("137.5 mm")),
    Sketcher.Constraint("DistanceX", -1, 1, 0, 3, Q("3.792842 mm")),
])
pocket17 = body.newObject("PartDesign::Pocket", "Pocket016")
pocket17.Profile = sketch18
pocket17.Type = "UpToFirst"
pocket17.Reversed = True

# Sketch on XZ plane
sketch19 = body.newObject("Sketcher::SketchObject", "Sketch018")
sketch19.AttachmentSupport = (doc.getObject("XZ_Plane"), [""])
sketch19.MapMode = "FlatFace"
sketch19.AttachmentOffset = App.Placement(V(0, 0, -0.351145), App.Rotation())
sketch19.addGeometry(Part.Circle(V(3.8, 112.5, 0), V(0, 0, 1), 1.8), False)
sketch19.addConstraint([
    Sketcher.Constraint("Diameter", 0, Q("3.5 mm")),
    Sketcher.Constraint("DistanceY", -1, 1, 0, 3, Q("112.5 mm")),
    Sketcher.Constraint("DistanceX", -1, 1, 0, 3, Q("3.792842 mm")),
])
pocket18 = body.newObject("PartDesign::Pocket", "Pocket017")
pocket18.Profile = sketch19
pocket18.Type = "UpToFirst"
pocket18.Reversed = True

# Sketch on XZ plane
sketch20 = body.newObject("Sketcher::SketchObject", "Sketch019")
sketch20.AttachmentSupport = (doc.getObject("XZ_Plane"), [""])
sketch20.MapMode = "FlatFace"
sketch20.AttachmentOffset = App.Placement(V(0, 0, -0.351145), App.Rotation())
sketch20.addGeometry(Part.Circle(V(3.8, 87.5, 0), V(0, 0, 1), 1.8), False)
sketch20.addConstraint([
    Sketcher.Constraint("Diameter", 0, Q("3.5 mm")),
    Sketcher.Constraint("DistanceY", -1, 1, 0, 3, Q("87.5 mm")),
    Sketcher.Constraint("DistanceX", -1, 1, 0, 3, Q("3.792842 mm")),
])
pocket19 = body.newObject("PartDesign::Pocket", "Pocket018")
pocket19.Profile = sketch20
pocket19.Type = "UpToFirst"
pocket19.Reversed = True

# Sketch on XZ plane
sketch21 = body.newObject("Sketcher::SketchObject", "Sketch020")
sketch21.AttachmentSupport = (doc.getObject("XZ_Plane"), [""])
sketch21.MapMode = "FlatFace"
sketch21.AttachmentOffset = App.Placement(V(0, 0, -0.351145), App.Rotation())
sketch21.addGeometry(Part.Circle(V(3.8, 62.5, 0), V(0, 0, 1), 1.8), False)
sketch21.addConstraint([
    Sketcher.Constraint("Diameter", 0, Q("3.5 mm")),
    Sketcher.Constraint("DistanceY", -1, 1, 0, 3, Q("62.5 mm")),
    Sketcher.Constraint("DistanceX", -1, 1, 0, 3, Q("3.792842 mm")),
])
pocket20 = body.newObject("PartDesign::Pocket", "Pocket019")
pocket20.Profile = sketch21
pocket20.Type = "UpToFirst"
pocket20.Reversed = True

# Sketch on XZ plane
sketch22 = body.newObject("Sketcher::SketchObject", "Sketch021")
sketch22.AttachmentSupport = (doc.getObject("XZ_Plane"), [""])
sketch22.MapMode = "FlatFace"
sketch22.AttachmentOffset = App.Placement(V(0, 0, -0.351145), App.Rotation())
sketch22.addGeometry(Part.Circle(V(3.8, 37.5, 0), V(0, 0, 1), 1.8), False)
sketch22.addConstraint([
    Sketcher.Constraint("Diameter", 0, Q("3.5 mm")),
    Sketcher.Constraint("DistanceY", -1, 1, 0, 3, Q("37.5 mm")),
    Sketcher.Constraint("DistanceX", -1, 1, 0, 3, Q("3.792842 mm")),
])
pocket21 = body.newObject("PartDesign::Pocket", "Pocket020")
pocket21.Profile = sketch22
pocket21.Type = "UpToFirst"
pocket21.Reversed = True

# Sketch on XZ plane
sketch23 = body.newObject("Sketcher::SketchObject", "Sketch022")
sketch23.AttachmentSupport = (doc.getObject("XZ_Plane"), [""])
sketch23.MapMode = "FlatFace"
sketch23.AttachmentOffset = App.Placement(V(0, 0, -0.351145), App.Rotation())
sketch23.addGeometry(Part.Circle(V(3.8, 12.5, 0), V(0, 0, 1), 1.8), False)
sketch23.addConstraint([
    Sketcher.Constraint("Diameter", 0, Q("3.5 mm")),
    Sketcher.Constraint("DistanceY", -1, 1, 0, 3, Q("12.5 mm")),
    Sketcher.Constraint("DistanceX", -1, 1, 0, 3, Q("3.792842 mm")),
])
pocket22 = body.newObject("PartDesign::Pocket", "Pocket021")
pocket22.Profile = sketch23
pocket22.Type = "UpToFirst"
pocket22.Reversed = True

doc.recompute()
